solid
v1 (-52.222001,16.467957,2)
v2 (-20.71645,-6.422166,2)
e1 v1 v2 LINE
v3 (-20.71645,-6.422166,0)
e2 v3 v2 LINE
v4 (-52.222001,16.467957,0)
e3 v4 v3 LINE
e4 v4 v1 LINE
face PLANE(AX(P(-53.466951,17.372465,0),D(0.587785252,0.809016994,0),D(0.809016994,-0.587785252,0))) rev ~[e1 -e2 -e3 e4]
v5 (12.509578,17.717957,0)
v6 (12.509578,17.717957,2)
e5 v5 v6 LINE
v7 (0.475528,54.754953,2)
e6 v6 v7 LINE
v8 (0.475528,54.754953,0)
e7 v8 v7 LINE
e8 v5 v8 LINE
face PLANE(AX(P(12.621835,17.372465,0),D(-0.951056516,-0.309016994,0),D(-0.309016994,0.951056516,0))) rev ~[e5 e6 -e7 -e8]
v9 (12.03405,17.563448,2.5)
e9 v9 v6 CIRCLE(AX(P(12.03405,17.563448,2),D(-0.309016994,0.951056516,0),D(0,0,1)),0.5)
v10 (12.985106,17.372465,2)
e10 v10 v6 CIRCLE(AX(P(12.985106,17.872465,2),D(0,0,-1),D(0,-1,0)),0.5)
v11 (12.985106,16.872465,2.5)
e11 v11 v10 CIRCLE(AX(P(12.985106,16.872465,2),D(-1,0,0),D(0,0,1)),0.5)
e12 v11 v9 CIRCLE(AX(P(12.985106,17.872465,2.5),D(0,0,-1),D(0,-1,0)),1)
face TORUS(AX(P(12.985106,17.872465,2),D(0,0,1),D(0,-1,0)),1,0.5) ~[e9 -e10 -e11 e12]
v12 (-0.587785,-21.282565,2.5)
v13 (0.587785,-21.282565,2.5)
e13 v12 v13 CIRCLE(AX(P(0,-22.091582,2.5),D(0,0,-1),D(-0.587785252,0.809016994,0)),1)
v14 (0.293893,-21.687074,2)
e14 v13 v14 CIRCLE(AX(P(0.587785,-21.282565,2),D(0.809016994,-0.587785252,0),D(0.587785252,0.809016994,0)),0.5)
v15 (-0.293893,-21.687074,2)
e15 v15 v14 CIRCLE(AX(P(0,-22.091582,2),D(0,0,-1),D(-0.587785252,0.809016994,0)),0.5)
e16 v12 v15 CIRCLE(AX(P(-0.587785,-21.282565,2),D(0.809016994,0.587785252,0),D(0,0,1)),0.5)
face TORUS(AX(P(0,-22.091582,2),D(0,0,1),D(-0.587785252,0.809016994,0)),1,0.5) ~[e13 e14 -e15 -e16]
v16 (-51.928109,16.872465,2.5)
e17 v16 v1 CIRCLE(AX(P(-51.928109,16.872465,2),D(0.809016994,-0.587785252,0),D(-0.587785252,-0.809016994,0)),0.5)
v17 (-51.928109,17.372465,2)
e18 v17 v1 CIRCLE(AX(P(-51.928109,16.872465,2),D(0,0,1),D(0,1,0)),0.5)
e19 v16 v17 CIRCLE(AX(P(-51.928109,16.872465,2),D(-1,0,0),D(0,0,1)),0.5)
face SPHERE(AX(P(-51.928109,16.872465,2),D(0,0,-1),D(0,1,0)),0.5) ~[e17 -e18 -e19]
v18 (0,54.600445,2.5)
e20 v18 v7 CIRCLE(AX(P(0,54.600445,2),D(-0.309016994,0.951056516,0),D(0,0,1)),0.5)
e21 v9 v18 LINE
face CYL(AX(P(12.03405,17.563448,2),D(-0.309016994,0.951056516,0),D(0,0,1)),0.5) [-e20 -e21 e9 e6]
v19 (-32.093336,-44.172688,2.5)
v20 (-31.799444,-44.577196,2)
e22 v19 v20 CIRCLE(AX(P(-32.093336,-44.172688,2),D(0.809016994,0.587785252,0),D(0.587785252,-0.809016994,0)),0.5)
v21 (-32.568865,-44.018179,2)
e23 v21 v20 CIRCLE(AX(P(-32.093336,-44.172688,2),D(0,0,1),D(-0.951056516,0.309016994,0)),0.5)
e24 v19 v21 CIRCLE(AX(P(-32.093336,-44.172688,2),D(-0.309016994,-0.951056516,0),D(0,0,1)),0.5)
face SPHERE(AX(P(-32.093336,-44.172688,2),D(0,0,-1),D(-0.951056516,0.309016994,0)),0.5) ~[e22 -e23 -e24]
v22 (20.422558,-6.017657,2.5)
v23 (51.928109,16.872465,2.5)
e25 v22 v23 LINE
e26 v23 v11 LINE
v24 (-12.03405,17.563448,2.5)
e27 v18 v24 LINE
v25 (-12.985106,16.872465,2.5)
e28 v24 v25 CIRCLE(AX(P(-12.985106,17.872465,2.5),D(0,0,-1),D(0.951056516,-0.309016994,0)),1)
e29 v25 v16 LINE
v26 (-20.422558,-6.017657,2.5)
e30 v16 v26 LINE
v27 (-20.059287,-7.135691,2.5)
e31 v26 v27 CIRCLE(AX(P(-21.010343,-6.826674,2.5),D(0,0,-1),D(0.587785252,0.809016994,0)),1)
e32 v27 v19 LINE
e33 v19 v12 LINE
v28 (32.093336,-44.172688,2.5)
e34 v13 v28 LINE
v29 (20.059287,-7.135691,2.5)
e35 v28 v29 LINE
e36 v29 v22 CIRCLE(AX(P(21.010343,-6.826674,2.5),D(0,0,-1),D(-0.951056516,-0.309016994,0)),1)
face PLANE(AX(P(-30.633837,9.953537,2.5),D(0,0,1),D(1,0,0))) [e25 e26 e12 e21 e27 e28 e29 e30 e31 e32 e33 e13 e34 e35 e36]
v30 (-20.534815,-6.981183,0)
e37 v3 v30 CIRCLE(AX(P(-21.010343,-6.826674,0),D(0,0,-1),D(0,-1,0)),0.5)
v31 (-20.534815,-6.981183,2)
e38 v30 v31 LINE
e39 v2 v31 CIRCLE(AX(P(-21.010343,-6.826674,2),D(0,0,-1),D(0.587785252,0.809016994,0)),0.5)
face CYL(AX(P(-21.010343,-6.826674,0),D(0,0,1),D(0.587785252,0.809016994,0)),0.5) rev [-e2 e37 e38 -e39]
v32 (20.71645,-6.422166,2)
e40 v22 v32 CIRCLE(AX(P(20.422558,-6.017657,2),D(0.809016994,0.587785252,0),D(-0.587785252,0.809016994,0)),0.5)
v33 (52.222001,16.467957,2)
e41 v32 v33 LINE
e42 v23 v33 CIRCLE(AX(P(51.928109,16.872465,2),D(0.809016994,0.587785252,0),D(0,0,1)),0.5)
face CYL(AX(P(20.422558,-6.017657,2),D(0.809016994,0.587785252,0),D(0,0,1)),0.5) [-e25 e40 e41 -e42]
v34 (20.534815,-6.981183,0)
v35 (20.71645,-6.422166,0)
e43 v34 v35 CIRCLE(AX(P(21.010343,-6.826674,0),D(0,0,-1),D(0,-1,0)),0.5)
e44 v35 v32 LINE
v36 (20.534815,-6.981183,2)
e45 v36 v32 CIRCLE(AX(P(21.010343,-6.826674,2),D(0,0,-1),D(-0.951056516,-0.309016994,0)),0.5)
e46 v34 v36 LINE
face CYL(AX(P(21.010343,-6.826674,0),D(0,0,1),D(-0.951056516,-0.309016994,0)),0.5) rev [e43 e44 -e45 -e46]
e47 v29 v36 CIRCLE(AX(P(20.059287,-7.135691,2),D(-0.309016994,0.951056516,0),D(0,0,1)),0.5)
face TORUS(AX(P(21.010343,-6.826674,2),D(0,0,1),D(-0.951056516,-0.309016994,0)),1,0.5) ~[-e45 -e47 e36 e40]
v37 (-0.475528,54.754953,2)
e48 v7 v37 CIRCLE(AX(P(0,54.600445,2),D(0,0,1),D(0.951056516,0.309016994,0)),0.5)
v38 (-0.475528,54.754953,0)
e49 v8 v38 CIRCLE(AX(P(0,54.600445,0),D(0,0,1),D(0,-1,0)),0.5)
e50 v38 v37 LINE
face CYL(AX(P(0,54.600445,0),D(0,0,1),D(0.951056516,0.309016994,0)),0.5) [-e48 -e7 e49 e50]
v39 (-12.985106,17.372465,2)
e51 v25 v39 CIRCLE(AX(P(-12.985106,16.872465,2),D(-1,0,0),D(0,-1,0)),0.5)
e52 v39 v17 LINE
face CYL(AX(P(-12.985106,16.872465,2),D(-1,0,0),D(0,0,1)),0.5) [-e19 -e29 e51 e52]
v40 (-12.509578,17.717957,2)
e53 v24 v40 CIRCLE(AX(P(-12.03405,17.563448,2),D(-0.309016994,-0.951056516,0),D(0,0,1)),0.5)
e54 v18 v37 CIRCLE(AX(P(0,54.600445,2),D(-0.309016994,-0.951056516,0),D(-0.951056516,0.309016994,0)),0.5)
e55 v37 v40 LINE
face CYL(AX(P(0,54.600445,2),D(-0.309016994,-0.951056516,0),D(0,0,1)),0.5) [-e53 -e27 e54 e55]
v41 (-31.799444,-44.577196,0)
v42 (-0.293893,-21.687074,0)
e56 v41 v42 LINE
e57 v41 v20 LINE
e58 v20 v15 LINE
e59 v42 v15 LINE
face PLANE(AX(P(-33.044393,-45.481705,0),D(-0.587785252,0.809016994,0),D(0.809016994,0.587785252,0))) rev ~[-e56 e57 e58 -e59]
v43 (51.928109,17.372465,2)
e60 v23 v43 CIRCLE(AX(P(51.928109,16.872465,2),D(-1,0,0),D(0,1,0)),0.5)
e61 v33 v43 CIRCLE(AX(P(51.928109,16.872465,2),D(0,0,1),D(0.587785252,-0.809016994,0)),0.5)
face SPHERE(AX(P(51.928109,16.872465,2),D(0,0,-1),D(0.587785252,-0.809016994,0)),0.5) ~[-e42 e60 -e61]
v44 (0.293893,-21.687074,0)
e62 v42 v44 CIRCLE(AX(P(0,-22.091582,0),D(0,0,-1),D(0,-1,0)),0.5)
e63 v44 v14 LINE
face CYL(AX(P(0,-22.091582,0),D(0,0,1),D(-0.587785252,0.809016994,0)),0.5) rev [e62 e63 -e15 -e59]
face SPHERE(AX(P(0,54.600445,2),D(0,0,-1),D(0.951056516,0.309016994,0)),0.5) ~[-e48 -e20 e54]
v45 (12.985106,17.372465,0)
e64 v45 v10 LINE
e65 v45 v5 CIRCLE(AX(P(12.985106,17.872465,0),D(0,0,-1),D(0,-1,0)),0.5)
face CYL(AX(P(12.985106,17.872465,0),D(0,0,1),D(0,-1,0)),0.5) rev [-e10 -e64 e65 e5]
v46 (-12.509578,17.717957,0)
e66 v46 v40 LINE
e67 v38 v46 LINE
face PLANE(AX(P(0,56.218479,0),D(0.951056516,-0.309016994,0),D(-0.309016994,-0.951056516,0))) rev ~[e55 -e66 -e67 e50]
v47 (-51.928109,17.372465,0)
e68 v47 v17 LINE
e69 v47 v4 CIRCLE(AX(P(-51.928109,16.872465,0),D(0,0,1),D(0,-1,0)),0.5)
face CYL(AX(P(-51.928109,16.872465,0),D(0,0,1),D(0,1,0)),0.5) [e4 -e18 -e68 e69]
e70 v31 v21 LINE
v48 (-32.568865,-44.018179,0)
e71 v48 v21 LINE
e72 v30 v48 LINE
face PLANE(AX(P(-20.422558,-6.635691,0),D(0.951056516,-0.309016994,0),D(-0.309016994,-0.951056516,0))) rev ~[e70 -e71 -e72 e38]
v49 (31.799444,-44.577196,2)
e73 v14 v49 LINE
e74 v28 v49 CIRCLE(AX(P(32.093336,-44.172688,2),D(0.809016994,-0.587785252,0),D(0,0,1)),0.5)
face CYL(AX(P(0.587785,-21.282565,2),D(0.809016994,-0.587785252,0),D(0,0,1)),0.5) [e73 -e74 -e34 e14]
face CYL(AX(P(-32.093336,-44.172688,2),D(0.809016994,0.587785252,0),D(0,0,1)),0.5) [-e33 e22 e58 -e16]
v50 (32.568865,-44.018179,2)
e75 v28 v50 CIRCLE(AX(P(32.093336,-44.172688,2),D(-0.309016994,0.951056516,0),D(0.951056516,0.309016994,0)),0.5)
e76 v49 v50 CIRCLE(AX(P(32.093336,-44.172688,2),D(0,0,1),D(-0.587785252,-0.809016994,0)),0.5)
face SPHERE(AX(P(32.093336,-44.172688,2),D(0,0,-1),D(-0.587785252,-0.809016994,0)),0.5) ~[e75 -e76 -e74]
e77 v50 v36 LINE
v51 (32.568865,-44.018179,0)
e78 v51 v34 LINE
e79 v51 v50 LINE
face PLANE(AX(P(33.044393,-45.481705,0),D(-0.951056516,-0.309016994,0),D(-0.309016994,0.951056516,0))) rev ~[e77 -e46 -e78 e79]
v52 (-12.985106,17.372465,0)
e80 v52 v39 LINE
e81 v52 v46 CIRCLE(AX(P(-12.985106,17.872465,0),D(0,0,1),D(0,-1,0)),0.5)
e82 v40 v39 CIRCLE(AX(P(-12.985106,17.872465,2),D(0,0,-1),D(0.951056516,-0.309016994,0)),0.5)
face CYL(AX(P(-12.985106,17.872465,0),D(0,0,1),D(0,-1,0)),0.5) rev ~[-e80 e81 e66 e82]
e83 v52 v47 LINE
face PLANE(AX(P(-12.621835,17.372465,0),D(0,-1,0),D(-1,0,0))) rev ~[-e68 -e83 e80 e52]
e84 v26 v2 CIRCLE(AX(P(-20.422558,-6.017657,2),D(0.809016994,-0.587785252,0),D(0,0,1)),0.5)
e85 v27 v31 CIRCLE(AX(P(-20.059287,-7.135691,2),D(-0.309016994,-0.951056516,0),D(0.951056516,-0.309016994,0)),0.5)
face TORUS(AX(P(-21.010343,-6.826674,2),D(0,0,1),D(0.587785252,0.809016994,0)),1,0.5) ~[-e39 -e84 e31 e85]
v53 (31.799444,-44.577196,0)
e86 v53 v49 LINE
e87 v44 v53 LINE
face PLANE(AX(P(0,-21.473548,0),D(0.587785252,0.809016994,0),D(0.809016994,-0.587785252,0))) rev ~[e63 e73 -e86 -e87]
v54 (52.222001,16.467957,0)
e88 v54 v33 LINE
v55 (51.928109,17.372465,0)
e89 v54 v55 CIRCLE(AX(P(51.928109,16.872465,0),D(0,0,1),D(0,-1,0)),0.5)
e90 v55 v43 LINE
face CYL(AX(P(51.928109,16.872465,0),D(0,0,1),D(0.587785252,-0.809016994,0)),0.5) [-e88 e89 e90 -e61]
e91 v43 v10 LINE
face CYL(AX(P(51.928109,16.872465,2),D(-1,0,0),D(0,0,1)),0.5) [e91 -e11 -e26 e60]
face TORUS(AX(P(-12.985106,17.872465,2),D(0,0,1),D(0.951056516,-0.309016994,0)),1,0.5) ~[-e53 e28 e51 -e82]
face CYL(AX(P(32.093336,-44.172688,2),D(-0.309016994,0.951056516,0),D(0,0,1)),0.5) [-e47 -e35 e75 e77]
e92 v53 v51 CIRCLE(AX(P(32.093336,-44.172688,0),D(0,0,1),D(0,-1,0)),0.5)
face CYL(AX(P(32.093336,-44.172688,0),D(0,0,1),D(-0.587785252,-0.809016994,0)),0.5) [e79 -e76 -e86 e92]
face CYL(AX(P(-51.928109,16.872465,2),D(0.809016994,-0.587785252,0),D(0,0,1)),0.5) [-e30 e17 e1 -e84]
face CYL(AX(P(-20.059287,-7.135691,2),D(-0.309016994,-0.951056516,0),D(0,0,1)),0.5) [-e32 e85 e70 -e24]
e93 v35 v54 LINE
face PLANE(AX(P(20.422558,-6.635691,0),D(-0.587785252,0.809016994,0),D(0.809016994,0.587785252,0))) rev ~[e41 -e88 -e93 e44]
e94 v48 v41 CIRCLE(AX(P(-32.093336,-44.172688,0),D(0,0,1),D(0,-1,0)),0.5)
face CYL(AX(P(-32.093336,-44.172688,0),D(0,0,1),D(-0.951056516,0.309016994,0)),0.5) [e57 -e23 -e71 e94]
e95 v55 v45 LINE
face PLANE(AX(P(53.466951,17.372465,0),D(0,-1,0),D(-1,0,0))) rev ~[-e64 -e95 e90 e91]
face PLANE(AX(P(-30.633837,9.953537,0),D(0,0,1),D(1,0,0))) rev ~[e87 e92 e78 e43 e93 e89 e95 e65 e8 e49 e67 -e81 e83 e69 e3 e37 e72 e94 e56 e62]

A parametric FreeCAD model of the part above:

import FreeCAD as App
import Part
import Sketcher

V = App.Vector
Q = App.Units.Quantity


def edges_at(feature, points):
    """Names of the edges that pass closest to the given points."""
    edges = feature.Shape.Edges
    near = lambda p: min(range(len(edges)), key=lambda i: edges[i].distToShape(Part.Vertex(*p))[0])
    return sorted({f"Edge{near(p) + 1}" for p in points})


def add_polygon(sketch, points):
    """Adds a closed chain of lines whose ends are joined by coincident constraints."""
    first, n = sketch.GeometryCount, len(points)
    for a, b in zip(points, points[1:] + points[:1]):
        sketch.addGeometry(Part.LineSegment(App.Vector(*a, 0), App.Vector(*b, 0)), False)
    for i in range(n):
        sketch.addConstraint(Sketcher.Constraint("Coincident", first + i, 2, first + (i + 1) % n, 1))

doc = App.newDocument("Part")
body = doc.addObject("PartDesign::Body", "Body")

# Sketch on XY plane
sketch1 = body.newObject("Sketcher::SketchObject", "Sketch")
sketch1.AttachmentSupport = (doc.getObject("XY_Plane"), [""])
sketch1.MapMode = "FlatFace"
add_polygon(sketch1, [(-12.621835, 17.372465), (-53.466951, 17.372465), (-20.422558, -6.635691), (-33.044393, -45.481705), (0, -21.473548), (33.044393, -45.481705), (20.422558, -6.635691), (53.466951, 17.372465), (12.621835, 17.372465), (0, 56.218479)])  # lines 0-9
sketch1.addConstraint([
    Sketcher.Constraint("Horizontal", 0),
    Sketcher.Constraint("Horizontal", 7),
    Sketcher.Constraint("Symmetric", 2, 2, 4, 2, -2),
    Sketcher.Constraint("Symmetric", 1, 2, 5, 2, -2),
    Sketcher.Constraint("Symmetric", 0, 2, 6, 2, -2),
    Sketcher.Constraint("PointOnObject", 3, 2, -2),
    Sketcher.Constraint("PointOnObject", 8, 2, -2),
    Sketcher.Constraint("Parallel", 1, 4),
    Sketcher.Constraint("Parallel", 5, 8),
    Sketcher.Constraint("Parallel", 2, 9),
    Sketcher.Constraint("Equal", 1, 2),
    Sketcher.Constraint("Equal", 2, 3),
    Sketcher.Constraint("Equal", 6, 8),
    Sketcher.Constraint("Angle", 1, Q("-36 deg")),
    Sketcher.Constraint("Angle", 2, Q("-108 deg")),
    Sketcher.Constraint("DistanceX", 0, 2, 6, 2, Q("106.933901 mm")),
    Sketcher.Constraint("DistanceY", 1, 2, -1, 1, Q("6.635691 mm")),
])
pad1 = body.newObject("PartDesign::Pad", "Pad")
pad1.Profile = sketch1
pad1.Length = 2.5
doc.recompute()

fillet = body.newObject("PartDesign::Fillet", "Fillet")
fillet.Base = (pad1, edges_at(pad1, [
    (0, 56.218, 1.25),
    (-53.467, 17.372, 1.25),
    (-33.044, -45.482, 1.25),
    (33.044, -45.482, 1.25),
    (53.467, 17.372, 1.25),
    (-20.423, -6.636, 1.25),
    (-12.622, 17.372, 1.25),
    (12.622, 17.372, 1.25),
    (20.423, -6.636, 1.25),
    (0, -21.474, 1.25),
]))
fillet.Radius = 0.5
doc.recompute()

fillet2 = body.newObject("PartDesign::Fillet", "Fillet001")
fillet2.Base = (fillet, edges_at(fillet, [
    (6.493, 36.236, 2.5),
    (-6.493, 36.236, 2.5),
    (32.457, 17.372, 2.5),
    (36.469, 5.023, 2.5),
    (26.552, -25.5, 2.5),
    (16.047, -33.132, 2.5),
    (-16.047, -33.132, 2.5),
    (-26.552, -25.5, 2.5),
    (-36.469, 5.023, 2.5),
    (-32.457, 17.372, 2.5),
    (-32.387, -44.577, 2.5),
    (32.387, -44.577, 2.5),
    (52.404, 17.027, 2.5),
    (0, 55.1, 2.5),
    (-52.404, 17.027, 2.5),
]))
fillet2.Radius = 0.5

doc.recompute()
